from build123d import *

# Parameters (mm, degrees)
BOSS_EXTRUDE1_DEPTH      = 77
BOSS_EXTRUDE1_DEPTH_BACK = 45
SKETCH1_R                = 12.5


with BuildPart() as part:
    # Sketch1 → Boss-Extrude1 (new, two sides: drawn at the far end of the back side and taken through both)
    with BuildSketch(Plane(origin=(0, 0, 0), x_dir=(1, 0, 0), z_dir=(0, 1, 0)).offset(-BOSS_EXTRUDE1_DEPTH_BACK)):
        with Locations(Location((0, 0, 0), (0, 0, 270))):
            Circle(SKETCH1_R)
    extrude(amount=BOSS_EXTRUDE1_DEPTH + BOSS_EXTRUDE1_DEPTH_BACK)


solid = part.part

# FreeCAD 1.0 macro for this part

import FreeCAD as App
import Part
import Sketcher
from FreeCAD import Vector
Q = App.Units.Quantity

doc = App.newDocument("Part")
body = doc.addObject("PartDesign::Body", "Body")

sketch1 = body.newObject("Sketcher::SketchObject", "Sketch")
sketch1.AttachmentSupport = (doc.getObject("XZ_Plane"), [""])
sketch1.MapMode = "FlatFace"
sketch1.addGeometry(Part.Circle(Vector(0, 0, 0), Vector(0, 0, 1), 12), False)
sketch1.addConstraint([
    Sketcher.Constraint("Coincident", 0, 3, -1, 1),
    Sketcher.Constraint("Diameter", 0, Q("25 mm")),
])
pad1 = body.newObject("PartDesign::Pad", "Pad")
pad1.Profile = sketch1
pad1.Type = "TwoLengths"
pad1.Length = 77
pad1.Length2 = 45
pad1.Reversed = True

doc.recompute()
